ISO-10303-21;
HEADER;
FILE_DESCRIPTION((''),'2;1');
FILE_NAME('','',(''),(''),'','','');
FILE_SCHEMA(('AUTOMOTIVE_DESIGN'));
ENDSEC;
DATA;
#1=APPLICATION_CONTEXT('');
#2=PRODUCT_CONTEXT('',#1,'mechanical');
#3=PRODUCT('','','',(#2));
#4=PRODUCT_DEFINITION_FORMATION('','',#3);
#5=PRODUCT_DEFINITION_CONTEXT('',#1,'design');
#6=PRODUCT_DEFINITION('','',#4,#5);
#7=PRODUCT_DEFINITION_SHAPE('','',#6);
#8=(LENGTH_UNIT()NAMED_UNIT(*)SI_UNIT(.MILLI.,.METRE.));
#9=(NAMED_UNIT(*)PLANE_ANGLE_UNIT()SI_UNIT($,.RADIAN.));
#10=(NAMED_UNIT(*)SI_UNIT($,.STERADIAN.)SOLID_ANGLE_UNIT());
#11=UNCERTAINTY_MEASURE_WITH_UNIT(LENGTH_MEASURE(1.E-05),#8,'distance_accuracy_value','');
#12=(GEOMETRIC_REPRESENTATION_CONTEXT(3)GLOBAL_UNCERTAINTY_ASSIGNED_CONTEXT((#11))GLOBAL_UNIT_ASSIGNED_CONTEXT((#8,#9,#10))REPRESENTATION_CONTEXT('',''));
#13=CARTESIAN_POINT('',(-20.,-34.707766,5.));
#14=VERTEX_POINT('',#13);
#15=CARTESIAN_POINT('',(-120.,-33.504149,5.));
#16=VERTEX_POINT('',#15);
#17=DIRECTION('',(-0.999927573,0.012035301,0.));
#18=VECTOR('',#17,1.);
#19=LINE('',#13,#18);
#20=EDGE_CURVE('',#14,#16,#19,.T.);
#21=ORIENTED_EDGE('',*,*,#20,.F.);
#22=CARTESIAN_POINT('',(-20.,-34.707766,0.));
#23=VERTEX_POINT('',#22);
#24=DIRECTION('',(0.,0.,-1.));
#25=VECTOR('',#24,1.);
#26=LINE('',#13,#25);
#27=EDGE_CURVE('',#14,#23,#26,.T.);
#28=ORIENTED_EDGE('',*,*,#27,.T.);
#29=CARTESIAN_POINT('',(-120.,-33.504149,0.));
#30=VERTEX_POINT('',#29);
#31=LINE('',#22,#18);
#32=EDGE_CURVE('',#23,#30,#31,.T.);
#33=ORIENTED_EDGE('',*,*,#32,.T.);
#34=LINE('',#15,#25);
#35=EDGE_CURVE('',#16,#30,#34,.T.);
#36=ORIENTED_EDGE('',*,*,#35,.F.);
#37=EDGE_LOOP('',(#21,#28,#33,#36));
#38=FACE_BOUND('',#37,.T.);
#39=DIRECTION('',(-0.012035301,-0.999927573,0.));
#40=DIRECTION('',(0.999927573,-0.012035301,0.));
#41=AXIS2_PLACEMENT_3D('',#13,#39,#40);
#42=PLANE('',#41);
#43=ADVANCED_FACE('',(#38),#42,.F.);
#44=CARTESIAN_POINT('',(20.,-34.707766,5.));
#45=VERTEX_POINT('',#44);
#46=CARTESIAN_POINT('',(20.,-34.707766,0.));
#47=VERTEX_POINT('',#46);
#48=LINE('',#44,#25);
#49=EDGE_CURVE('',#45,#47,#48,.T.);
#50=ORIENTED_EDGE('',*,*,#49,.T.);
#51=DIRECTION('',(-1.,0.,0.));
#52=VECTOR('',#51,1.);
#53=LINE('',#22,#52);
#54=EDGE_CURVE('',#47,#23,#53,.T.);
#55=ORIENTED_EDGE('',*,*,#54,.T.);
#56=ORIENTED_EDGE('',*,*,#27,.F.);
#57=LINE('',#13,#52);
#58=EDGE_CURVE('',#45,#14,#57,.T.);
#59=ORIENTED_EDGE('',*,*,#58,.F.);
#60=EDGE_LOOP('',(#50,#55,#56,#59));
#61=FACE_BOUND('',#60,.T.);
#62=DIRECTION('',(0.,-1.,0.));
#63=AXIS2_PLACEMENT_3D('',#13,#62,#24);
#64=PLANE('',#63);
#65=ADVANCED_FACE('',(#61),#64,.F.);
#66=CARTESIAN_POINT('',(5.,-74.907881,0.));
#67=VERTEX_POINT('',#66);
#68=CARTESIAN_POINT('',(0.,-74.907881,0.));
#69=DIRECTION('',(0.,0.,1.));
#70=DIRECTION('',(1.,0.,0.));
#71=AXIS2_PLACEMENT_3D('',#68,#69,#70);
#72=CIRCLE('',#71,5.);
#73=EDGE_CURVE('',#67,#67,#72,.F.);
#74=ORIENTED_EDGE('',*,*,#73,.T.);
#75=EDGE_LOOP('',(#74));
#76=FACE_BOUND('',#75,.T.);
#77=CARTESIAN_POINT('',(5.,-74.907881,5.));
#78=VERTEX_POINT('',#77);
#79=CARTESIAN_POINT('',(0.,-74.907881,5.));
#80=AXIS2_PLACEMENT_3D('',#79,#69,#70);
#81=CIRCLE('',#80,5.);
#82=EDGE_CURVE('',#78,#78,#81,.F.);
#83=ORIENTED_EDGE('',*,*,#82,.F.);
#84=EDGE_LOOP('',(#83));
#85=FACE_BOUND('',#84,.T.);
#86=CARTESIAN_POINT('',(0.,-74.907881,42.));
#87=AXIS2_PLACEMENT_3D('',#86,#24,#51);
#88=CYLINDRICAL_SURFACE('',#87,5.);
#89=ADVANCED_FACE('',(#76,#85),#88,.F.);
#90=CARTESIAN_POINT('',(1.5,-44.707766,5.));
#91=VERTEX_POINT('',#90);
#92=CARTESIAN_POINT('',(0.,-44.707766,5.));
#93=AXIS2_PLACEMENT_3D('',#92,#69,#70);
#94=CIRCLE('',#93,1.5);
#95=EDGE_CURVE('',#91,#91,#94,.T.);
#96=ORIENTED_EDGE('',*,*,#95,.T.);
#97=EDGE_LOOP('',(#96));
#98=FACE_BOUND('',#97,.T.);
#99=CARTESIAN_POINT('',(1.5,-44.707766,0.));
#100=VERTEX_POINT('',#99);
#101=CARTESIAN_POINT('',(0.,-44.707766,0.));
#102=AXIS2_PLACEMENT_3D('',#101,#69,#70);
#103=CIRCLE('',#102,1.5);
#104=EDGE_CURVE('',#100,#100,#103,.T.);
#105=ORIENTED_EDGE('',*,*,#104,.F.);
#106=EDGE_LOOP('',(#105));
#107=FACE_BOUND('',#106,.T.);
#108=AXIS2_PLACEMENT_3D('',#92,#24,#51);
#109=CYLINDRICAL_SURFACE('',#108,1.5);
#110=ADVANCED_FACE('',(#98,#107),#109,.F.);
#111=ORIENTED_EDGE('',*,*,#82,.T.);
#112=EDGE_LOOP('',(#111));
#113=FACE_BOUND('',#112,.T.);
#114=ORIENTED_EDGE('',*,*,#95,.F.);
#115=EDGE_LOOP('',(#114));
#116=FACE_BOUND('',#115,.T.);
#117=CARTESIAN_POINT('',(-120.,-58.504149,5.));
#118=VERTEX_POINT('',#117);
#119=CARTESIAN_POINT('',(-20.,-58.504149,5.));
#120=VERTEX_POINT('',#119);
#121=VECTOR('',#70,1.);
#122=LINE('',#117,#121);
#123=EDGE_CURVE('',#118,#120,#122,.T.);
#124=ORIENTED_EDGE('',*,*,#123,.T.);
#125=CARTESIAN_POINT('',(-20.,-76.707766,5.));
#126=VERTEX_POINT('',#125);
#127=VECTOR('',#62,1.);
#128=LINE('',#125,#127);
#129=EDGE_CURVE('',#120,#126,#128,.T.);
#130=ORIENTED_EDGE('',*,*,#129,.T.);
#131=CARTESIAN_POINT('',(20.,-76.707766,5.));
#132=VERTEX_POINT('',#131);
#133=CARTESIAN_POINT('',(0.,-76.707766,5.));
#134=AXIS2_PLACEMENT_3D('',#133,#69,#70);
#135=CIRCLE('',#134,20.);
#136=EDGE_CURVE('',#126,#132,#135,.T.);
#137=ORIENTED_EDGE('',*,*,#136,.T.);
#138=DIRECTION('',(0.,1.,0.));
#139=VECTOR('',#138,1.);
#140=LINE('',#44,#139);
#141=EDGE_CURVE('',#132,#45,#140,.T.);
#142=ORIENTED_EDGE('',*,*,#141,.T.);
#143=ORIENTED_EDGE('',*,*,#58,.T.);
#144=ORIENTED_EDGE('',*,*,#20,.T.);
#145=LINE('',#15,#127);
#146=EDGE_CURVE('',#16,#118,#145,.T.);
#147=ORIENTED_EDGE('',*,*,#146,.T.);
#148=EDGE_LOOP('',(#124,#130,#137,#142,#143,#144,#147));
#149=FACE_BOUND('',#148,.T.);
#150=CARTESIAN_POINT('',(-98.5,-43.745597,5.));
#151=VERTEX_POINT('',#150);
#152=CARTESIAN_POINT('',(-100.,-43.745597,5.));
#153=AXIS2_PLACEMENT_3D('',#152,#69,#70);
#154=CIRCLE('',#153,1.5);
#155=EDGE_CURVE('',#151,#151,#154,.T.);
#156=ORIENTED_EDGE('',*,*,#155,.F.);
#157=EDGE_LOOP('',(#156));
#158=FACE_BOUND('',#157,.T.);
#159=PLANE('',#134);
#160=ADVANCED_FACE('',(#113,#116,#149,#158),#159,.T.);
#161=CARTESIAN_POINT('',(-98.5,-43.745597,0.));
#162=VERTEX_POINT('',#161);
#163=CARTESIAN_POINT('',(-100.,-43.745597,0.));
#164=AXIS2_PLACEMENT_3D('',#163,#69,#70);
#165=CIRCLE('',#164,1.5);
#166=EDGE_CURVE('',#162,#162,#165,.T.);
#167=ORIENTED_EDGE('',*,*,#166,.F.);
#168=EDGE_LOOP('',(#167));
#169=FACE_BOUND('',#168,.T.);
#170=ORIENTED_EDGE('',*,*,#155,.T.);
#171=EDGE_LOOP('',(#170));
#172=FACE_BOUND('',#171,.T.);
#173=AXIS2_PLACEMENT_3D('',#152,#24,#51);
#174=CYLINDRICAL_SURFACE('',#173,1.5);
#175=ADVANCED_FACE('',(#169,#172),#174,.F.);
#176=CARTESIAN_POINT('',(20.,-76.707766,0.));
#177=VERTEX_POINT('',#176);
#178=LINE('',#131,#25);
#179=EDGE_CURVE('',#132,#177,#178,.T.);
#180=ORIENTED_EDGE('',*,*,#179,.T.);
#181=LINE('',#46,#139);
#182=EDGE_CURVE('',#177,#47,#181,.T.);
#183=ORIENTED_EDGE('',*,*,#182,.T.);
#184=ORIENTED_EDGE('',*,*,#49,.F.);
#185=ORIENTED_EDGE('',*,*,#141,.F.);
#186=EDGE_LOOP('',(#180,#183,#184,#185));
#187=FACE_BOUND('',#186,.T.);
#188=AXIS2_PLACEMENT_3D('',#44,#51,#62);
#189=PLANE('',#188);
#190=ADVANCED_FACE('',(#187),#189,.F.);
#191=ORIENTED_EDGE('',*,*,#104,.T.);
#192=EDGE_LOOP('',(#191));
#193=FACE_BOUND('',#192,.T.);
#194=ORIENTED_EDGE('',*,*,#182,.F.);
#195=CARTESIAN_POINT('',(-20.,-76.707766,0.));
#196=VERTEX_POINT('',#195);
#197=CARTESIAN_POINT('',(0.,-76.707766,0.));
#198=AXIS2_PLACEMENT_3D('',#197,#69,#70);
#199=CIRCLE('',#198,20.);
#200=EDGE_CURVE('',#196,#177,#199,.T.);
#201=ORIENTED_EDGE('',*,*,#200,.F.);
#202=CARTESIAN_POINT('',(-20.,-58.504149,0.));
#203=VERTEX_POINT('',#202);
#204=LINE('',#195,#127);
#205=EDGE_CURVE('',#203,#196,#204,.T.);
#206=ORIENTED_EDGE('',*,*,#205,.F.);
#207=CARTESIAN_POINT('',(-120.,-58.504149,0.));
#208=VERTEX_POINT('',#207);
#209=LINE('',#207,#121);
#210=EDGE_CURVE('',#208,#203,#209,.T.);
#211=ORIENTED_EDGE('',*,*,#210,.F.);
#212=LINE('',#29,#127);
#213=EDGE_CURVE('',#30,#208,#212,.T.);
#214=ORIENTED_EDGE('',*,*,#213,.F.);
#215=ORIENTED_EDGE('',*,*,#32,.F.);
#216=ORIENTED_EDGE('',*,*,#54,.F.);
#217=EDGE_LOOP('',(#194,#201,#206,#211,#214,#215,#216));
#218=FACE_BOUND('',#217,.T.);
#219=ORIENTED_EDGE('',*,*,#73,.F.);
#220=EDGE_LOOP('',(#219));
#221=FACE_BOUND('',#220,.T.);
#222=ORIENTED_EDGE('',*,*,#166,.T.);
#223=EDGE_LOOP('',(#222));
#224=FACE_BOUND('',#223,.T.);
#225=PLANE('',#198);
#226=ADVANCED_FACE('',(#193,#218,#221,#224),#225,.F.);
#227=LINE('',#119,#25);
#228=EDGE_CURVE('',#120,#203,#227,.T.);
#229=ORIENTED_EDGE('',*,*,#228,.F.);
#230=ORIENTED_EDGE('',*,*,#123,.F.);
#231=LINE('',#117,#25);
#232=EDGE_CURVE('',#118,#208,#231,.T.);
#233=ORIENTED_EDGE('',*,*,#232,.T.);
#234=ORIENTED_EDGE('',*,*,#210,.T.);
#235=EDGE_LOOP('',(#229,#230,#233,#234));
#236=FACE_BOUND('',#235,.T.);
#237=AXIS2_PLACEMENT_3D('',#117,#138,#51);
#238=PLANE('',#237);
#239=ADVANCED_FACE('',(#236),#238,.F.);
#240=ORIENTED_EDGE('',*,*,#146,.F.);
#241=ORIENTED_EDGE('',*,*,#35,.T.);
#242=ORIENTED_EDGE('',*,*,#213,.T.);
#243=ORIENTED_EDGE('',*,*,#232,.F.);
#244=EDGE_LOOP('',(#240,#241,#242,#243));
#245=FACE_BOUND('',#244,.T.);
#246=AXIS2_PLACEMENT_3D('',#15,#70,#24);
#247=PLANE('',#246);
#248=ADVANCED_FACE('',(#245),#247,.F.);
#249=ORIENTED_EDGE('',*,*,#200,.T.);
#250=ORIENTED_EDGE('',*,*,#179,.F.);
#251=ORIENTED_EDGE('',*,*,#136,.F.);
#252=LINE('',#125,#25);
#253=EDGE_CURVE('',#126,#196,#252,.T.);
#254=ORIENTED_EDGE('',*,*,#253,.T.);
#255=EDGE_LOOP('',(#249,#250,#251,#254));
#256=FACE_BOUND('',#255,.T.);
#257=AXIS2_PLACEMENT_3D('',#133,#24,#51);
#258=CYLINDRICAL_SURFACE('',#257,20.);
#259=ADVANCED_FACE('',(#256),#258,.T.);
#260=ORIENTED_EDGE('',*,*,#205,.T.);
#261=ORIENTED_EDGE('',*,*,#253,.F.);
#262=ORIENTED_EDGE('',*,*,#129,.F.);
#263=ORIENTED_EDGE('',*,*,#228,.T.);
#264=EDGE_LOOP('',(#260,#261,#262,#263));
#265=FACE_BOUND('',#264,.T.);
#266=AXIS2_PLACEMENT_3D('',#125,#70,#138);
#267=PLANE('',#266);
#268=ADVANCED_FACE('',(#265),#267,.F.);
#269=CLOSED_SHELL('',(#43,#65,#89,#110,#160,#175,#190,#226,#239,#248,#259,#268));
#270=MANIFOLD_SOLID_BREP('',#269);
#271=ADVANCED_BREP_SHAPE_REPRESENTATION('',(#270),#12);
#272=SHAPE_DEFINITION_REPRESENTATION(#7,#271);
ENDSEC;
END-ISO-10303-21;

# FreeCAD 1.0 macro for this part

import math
import FreeCAD as App
import Part
import Sketcher
from FreeCAD import Vector

doc = App.newDocument("Part")
body = doc.addObject("PartDesign::Body", "Body")

# Sketch on XY plane
sketch1 = body.newObject("Sketcher::SketchObject", "Sketch")
sketch1.AttachmentSupport = (doc.getObject("XY_Plane"), [""])
sketch1.MapMode = "FlatFace"
sketch1.addGeometry([
    Part.LineSegment(Vector(-20, -58.5, 0), Vector(-20, -76.7, 0)),  # 0
    Part.ArcOfCircle(Part.Circle(Vector(0, -76.7, 0), Vector(0, 0, 1), 20), math.radians(180), math.radians(360)),  # 1
    Part.LineSegment(Vector(20, -76.7, 0), Vector(20, -34.7, 0)),  # 2
    Part.LineSegment(Vector(20, -34.7, 0), Vector(-20, -34.7, 0)),  # 3
    Part.LineSegment(Vector(-20, -34.7, 0), Vector(-120, -33.5, 0)),  # 4
    Part.LineSegment(Vector(-120, -33.5, 0), Vector(-120, -58.5, 0)),  # 5
    Part.LineSegment(Vector(-120, -58.5, 0), Vector(-20, -58.5, 0)),  # 6
    Part.Circle(Vector(0, -44.7, 0), Vector(0, 0, 1), 1.5),  # 7
    Part.Circle(Vector(-100, -43.7, 0), Vector(0, 0, 1), 1.5),  # 8
], False)
sketch1.addConstraint([
    Sketcher.Constraint("Tangent", 0, 2, 1, 1),
    Sketcher.Constraint("Tangent", 1, 2, 2, 1),
    Sketcher.Constraint("Coincident", 2, 2, 3, 1),
    Sketcher.Constraint("Coincident", 3, 2, 4, 1),
    Sketcher.Constraint("Coincident", 4, 2, 5, 1),
    Sketcher.Constraint("Coincident", 5, 2, 6, 1),
    Sketcher.Constraint("Coincident", 6, 2, 0, 1),
    Sketcher.Constraint("Vertical", 0),
    Sketcher.Constraint("Vertical", 2),
    Sketcher.Constraint("Horizontal", 3),
    Sketcher.Constraint("Vertical", 5),
    Sketcher.Constraint("Horizontal", 6),
    Sketcher.Constraint("Equal", 7, 8),
    Sketcher.Constraint("PointOnObject", 1, 3, -2),
    Sketcher.Constraint("PointOnObject", 7, 3, -2),
    Sketcher.Constraint("Vertical", 0, 2, 3, 2),
    Sketcher.Constraint("Diameter", 7, 3.0),
    Sketcher.Constraint("Radius", 1, 20.0),
    Sketcher.Constraint("DistanceX", 6, 1, 6, 2, 100.0),
    Sketcher.Constraint("DistanceY", 2, 1, 2, 2, 42.0),
    Sketcher.Constraint("DistanceY", 5, 2, 5, 1, 25.0),
    Sketcher.Constraint("DistanceX", 8, 3, -1, 1, 100.0),
    Sketcher.Constraint("DistanceY", 1, 3, 7, 3, 32.0),
    Sketcher.Constraint("DistanceY", 0, 2, 0, 1, 18.203617),
    Sketcher.Constraint("DistanceY", 4, 2, -1, 1, 33.504149),
    Sketcher.Constraint("DistanceY", 7, 3, 8, 3, 0.96217),
])
pad1 = body.newObject("PartDesign::Pad", "Pad")
pad1.Profile = sketch1
pad1.Length = 5

# Sketch on XY plane
sketch2 = body.newObject("Sketcher::SketchObject", "Sketch001")
sketch2.AttachmentSupport = (doc.getObject("XY_Plane"), [""])
sketch2.MapMode = "FlatFace"
sketch2.AttachmentOffset = App.Placement(Vector(0, 0, 5), App.Rotation())
sketch2.addGeometry(Part.Circle(Vector(0, -75, 0), Vector(0, 0, 1), 5), False)
sketch2.addConstraint([
    Sketcher.Constraint("PointOnObject", 0, 3, -2),
    Sketcher.Constraint("Diameter", 0, 10.0),
    Sketcher.Constraint("DistanceY", 0, 3, -1, 1, 74.907881),
])
pocket1 = body.newObject("PartDesign::Pocket", "Pocket")
pocket1.Profile = sketch2
pocket1.Type = "ThroughAll"
pocket1.Midplane = True

doc.recompute()
